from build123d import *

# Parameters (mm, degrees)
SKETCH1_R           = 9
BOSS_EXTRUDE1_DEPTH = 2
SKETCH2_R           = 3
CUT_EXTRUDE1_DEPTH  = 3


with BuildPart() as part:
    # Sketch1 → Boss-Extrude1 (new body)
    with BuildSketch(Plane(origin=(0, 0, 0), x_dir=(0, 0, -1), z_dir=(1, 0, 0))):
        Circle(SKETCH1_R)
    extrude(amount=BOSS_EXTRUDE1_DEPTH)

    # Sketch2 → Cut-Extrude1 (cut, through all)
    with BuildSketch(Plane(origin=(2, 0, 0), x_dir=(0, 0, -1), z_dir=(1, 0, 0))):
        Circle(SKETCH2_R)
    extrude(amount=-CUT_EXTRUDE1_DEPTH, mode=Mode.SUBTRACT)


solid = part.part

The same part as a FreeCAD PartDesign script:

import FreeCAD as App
import Part
import Sketcher

doc = App.newDocument("Part")
body = doc.addObject("PartDesign::Body", "Body")

# Sketch on YZ plane
sketch1 = body.newObject("Sketcher::SketchObject", "Sketch")
sketch1.AttachmentSupport = (doc.getObject("YZ_Plane"), [""])
sketch1.MapMode = "FlatFace"
sketch1.addGeometry(Part.Circle(App.Vector(0, 0, 0), App.Vector(0, 0, 1), 9), False)
sketch1.addConstraint([
    Sketcher.Constraint("Coincident", 0, 3, -1, 1),
    Sketcher.Constraint("Diameter", 0, 18.0),
])
pad1 = body.newObject("PartDesign::Pad", "Pad")
pad1.Profile = sketch1
pad1.Length = 2

# Sketch on YZ plane
sketch2 = body.newObject("Sketcher::SketchObject", "Sketch001")
sketch2.AttachmentSupport = (doc.getObject("YZ_Plane"), [""])
sketch2.MapMode = "FlatFace"
sketch2.AttachmentOffset = App.Placement(App.Vector(0, 0, 2), App.Rotation())
sketch2.addGeometry(Part.Circle(App.Vector(0, 0, 0), App.Vector(0, 0, 1), 3), False)
sketch2.addConstraint([
    Sketcher.Constraint("Coincident", 0, 3, -1, 1),
    Sketcher.Constraint("Diameter", 0, 6.0),
])
pocket1 = body.newObject("PartDesign::Pocket", "Pocket")
pocket1.Profile = sketch2
pocket1.Type = "ThroughAll"

doc.recompute()
